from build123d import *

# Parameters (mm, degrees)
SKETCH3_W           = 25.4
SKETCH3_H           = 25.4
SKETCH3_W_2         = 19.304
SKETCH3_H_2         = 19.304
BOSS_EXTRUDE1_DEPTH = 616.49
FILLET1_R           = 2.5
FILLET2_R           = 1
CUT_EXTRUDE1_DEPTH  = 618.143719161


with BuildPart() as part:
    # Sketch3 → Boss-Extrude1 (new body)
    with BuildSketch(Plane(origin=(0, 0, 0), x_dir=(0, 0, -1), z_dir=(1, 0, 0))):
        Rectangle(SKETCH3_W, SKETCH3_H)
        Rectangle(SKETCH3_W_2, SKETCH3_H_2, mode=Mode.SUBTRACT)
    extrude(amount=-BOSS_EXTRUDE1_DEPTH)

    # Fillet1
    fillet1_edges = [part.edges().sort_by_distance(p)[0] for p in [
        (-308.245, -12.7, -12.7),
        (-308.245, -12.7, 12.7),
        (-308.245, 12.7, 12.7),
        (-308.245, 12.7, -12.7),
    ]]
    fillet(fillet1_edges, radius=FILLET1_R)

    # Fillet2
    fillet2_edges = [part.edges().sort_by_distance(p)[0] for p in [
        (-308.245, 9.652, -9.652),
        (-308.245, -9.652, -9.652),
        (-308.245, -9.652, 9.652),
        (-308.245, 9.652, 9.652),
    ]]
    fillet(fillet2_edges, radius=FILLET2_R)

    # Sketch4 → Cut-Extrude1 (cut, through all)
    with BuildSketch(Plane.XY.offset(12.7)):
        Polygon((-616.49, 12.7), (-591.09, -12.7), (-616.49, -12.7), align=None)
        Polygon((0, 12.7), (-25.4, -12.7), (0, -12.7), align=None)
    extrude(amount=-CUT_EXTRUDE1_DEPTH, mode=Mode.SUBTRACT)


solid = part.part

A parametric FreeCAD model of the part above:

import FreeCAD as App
import Part
import Sketcher


def edges_at(feature, points):
    """Names of the edges that pass closest to the given points."""
    edges = feature.Shape.Edges
    near = lambda p: min(range(len(edges)), key=lambda i: edges[i].distToShape(Part.Vertex(*p))[0])
    return sorted({f"Edge{near(p) + 1}" for p in points})

doc = App.newDocument("Part")
body = doc.addObject("PartDesign::Body", "Body")

sketch1 = doc.addObject("Sketcher::SketchObject", "Sketch")
body.addObject(sketch1)
sketch1.AttachmentSupport = (doc.YZ_Plane, [""])
sketch1.MapMode = "FlatFace"
sketch1.addGeometry([
    Part.LineSegment(App.Vector(12.7, 12.7, 0), App.Vector(-12.7, 12.7, 0)),
    Part.LineSegment(App.Vector(-12.7, 12.7, 0), App.Vector(-12.7, -12.7, 0)),
    Part.LineSegment(App.Vector(-12.7, -12.7, 0), App.Vector(12.7, -12.7, 0)),
    Part.LineSegment(App.Vector(12.7, -12.7, 0), App.Vector(12.7, 12.7, 0)),
    Part.LineSegment(App.Vector(-9.652, -9.652, 0), App.Vector(-9.652, 9.652, 0)),
    Part.LineSegment(App.Vector(-9.652, 9.652, 0), App.Vector(9.652, 9.652, 0)),
    Part.LineSegment(App.Vector(9.652, 9.652, 0), App.Vector(9.652, -9.652, 0)),
    Part.LineSegment(App.Vector(9.652, -9.652, 0), App.Vector(-9.652, -9.652, 0)),
], False)
sketch1.addConstraint([
    Sketcher.Constraint("Coincident", 0, 2, 1, 1),
    Sketcher.Constraint("Coincident", 1, 2, 2, 1),
    Sketcher.Constraint("Coincident", 2, 2, 3, 1),
    Sketcher.Constraint("Coincident", 3, 2, 0, 1),
    Sketcher.Constraint("Coincident", 4, 2, 5, 1),
    Sketcher.Constraint("Coincident", 5, 2, 6, 1),
    Sketcher.Constraint("Coincident", 6, 2, 7, 1),
    Sketcher.Constraint("Coincident", 7, 2, 4, 1),
    Sketcher.Constraint("Horizontal", 0),
    Sketcher.Constraint("Vertical", 1),
    Sketcher.Constraint("Horizontal", 2),
    Sketcher.Constraint("Vertical", 3),
    Sketcher.Constraint("Vertical", 4),
    Sketcher.Constraint("Horizontal", 5),
    Sketcher.Constraint("Vertical", 6),
    Sketcher.Constraint("Horizontal", 7),
    Sketcher.Constraint("Symmetric", 0, 2, 2, 2, -1, 1),
    Sketcher.Constraint("Symmetric", 4, 2, 6, 2, -1, 1),
    Sketcher.Constraint("Equal", 2, 1),
    Sketcher.Constraint("Equal", 7, 4),
    Sketcher.Constraint("DistanceX", 0, 2, 0, 1, 25.4),
    Sketcher.Constraint("DistanceX", 5, 1, 5, 2, 19.304),
])
pad1 = doc.addObject("PartDesign::Pad", "Pad")
body.addObject(pad1)
pad1.Profile = sketch1
pad1.Length = 616.49
pad1.Reversed = True
doc.recompute()

fillet = doc.addObject("PartDesign::Fillet", "Fillet")
body.addObject(fillet)
fillet.Base = (pad1, edges_at(pad1, [
    (-308.245, -12.7, -12.7),
    (-308.245, -12.7, 12.7),
    (-308.245, 12.7, 12.7),
    (-308.245, 12.7, -12.7),
]))
fillet.Radius = 2.5
doc.recompute()

fillet2 = doc.addObject("PartDesign::Fillet", "Fillet001")
body.addObject(fillet2)
fillet2.Base = (fillet, edges_at(fillet, [
    (-308.245, 9.652, -9.652),
    (-308.245, -9.652, -9.652),
    (-308.245, -9.652, 9.652),
    (-308.245, 9.652, 9.652),
]))
fillet2.Radius = 1

sketch2 = doc.addObject("Sketcher::SketchObject", "Sketch001")
body.addObject(sketch2)
sketch2.AttachmentSupport = (doc.XY_Plane, [""])
sketch2.MapMode = "FlatFace"
sketch2.AttachmentOffset = App.Placement(App.Vector(0, 0, 12.7), App.Rotation())
sketch2.addGeometry([
    Part.LineSegment(App.Vector(-591.09, -12.7, 0), App.Vector(-616.49, 12.7, 0)),
    Part.LineSegment(App.Vector(-616.49, 12.7, 0), App.Vector(-616.49, -12.7, 0)),
    Part.LineSegment(App.Vector(-616.49, -12.7, 0), App.Vector(-591.09, -12.7, 0)),
    Part.LineSegment(App.Vector(0, 12.7, 0), App.Vector(-25.4, -12.7, 0)),
    Part.LineSegment(App.Vector(-25.4, -12.7, 0), App.Vector(0, -12.7, 0)),
    Part.LineSegment(App.Vector(0, -12.7, 0), App.Vector(0, 12.7, 0)),
], False)
sketch2.addConstraint([
    Sketcher.Constraint("Coincident", 0, 2, 1, 1),
    Sketcher.Constraint("Coincident", 1, 2, 2, 1),
    Sketcher.Constraint("Coincident", 2, 2, 0, 1),
    Sketcher.Constraint("Coincident", 3, 2, 4, 1),
    Sketcher.Constraint("Coincident", 4, 2, 5, 1),
    Sketcher.Constraint("Coincident", 5, 2, 3, 1),
    Sketcher.Constraint("Vertical", 1),
    Sketcher.Constraint("Horizontal", 2),
    Sketcher.Constraint("Horizontal", 4),
    Sketcher.Constraint("Vertical", 5),
    Sketcher.Constraint("Symmetric", 4, 2, 5, 2, -1, 1),
    Sketcher.Constraint("Perpendicular", 0, 3),
    Sketcher.Constraint("Horizontal", 2, 2, 3, 2),
    Sketcher.Constraint("Horizontal", 0, 2, 5, 2),
    Sketcher.Constraint("Equal", 2, 4),
    Sketcher.Constraint("DistanceX", 2, 1, 2, 2, 25.4),
    Sketcher.Constraint("DistanceX", 0, 2, -1, 1, 616.49),
])
pocket1 = doc.addObject("PartDesign::Pocket", "Pocket")
body.addObject(pocket1)
pocket1.Profile = sketch2
pocket1.Type = "ThroughAll"

doc.recompute()
